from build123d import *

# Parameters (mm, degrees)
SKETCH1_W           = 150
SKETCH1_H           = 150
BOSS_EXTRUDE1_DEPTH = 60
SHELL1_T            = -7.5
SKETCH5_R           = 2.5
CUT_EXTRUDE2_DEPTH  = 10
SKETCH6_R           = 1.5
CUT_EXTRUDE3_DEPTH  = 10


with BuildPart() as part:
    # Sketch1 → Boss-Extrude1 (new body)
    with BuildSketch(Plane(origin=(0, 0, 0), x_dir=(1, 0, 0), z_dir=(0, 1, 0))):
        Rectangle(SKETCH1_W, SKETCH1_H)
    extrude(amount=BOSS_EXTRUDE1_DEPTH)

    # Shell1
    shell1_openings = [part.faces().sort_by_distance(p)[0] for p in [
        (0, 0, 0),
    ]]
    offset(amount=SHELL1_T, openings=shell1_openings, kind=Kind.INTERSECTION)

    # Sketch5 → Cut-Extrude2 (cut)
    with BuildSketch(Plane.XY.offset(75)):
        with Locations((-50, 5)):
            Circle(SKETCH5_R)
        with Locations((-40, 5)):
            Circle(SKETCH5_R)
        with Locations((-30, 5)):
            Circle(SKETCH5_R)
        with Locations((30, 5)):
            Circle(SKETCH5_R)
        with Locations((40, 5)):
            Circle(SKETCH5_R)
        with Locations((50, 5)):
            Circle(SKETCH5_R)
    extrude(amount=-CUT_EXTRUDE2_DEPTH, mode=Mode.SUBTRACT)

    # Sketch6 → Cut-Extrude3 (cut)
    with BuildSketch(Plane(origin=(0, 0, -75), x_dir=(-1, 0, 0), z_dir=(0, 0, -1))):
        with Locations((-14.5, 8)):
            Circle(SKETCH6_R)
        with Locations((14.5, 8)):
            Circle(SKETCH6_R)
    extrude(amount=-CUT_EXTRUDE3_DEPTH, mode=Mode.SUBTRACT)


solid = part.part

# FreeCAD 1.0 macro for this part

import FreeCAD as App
import Part
import Sketcher
from FreeCAD import Vector
Q = App.Units.Quantity


def faces_at(feature, points):
    """Names of the faces that lie closest to the given points."""
    faces = feature.Shape.Faces
    near = lambda p: min(range(len(faces)), key=lambda i: faces[i].distToShape(Part.Vertex(*p))[0])
    return sorted({f"Face{near(p) + 1}" for p in points})

doc = App.newDocument("Part")
body = doc.addObject("PartDesign::Body", "Body")

# Sketch on XZ plane
sketch1 = doc.addObject("Sketcher::SketchObject", "Sketch")
body.addObject(sketch1)
sketch1.AttachmentSupport = (doc.XZ_Plane, [""])
sketch1.MapMode = "FlatFace"
sketch1.addGeometry([
    Part.LineSegment(Vector(-75, -75, 0), Vector(-75, 75, 0)),
    Part.LineSegment(Vector(-75, 75, 0), Vector(75, 75, 0)),
    Part.LineSegment(Vector(75, 75, 0), Vector(75, -75, 0)),
    Part.LineSegment(Vector(75, -75, 0), Vector(-75, -75, 0)),
], False)
sketch1.addConstraint([
    Sketcher.Constraint("Coincident", 0, 2, 1, 1),
    Sketcher.Constraint("Coincident", 1, 2, 2, 1),
    Sketcher.Constraint("Coincident", 2, 2, 3, 1),
    Sketcher.Constraint("Coincident", 3, 2, 0, 1),
    Sketcher.Constraint("Vertical", 0),
    Sketcher.Constraint("Horizontal", 1),
    Sketcher.Constraint("Vertical", 2),
    Sketcher.Constraint("Horizontal", 3),
    Sketcher.Constraint("Symmetric", 0, 2, 2, 2, -1, 1),
    Sketcher.Constraint("Equal", 3, 0),
    Sketcher.Constraint("DistanceX", 1, 1, 1, 2, Q("150 mm")),
])
pad1 = doc.addObject("PartDesign::Pad", "Pad")
body.addObject(pad1)
pad1.Profile = sketch1
pad1.Length = 60
pad1.Reversed = True
doc.recompute()

thickness = doc.addObject("PartDesign::Thickness", "Thickness")
body.addObject(thickness)
thickness.Base = (pad1, faces_at(pad1, [(0, 0, 0)]))
thickness.Value = 7.5
thickness.Reversed = True
thickness.Join = "Intersection"

# Sketch on XY plane
sketch2 = doc.addObject("Sketcher::SketchObject", "Sketch001")
body.addObject(sketch2)
sketch2.AttachmentSupport = (doc.XY_Plane, [""])
sketch2.MapMode = "FlatFace"
sketch2.AttachmentOffset = App.Placement(Vector(0, 0, 75), App.Rotation())
sketch2.addGeometry([
    Part.Circle(Vector(-50, 5, 0), Vector(0, 0, 1), 2.5),  # 0
    Part.Circle(Vector(-40, 5, 0), Vector(0, 0, 1), 2.5),  # 1
    Part.Circle(Vector(-30, 5, 0), Vector(0, 0, 1), 2.5),  # 2
    Part.Circle(Vector(30, 5, 0), Vector(0, 0, 1), 2.5),  # 3
    Part.Circle(Vector(40, 5, 0), Vector(0, 0, 1), 2.5),  # 4
    Part.Circle(Vector(50, 5, 0), Vector(0, 0, 1), 2.5),  # 5
], False)
sketch2.addConstraint([
    Sketcher.Constraint("Equal", 0, 1),
    Sketcher.Constraint("Equal", 1, 2),
    Sketcher.Constraint("Equal", 2, 3),
    Sketcher.Constraint("Equal", 3, 4),
    Sketcher.Constraint("Equal", 4, 5),
    Sketcher.Constraint("Symmetric", 2, 3, 3, 3, -2),
    Sketcher.Constraint("Symmetric", 1, 3, 4, 3, -2),
    Sketcher.Constraint("Symmetric", 0, 3, 5, 3, -2),
    Sketcher.Constraint("Horizontal", 0, 3, 1, 3),
    Sketcher.Constraint("Horizontal", 1, 3, 2, 3),
    Sketcher.Constraint("Diameter", 0, Q("5 mm")),
    Sketcher.Constraint("DistanceX", 0, 3, -1, 1, Q("50 mm")),
    Sketcher.Constraint("DistanceY", -1, 1, 0, 3, Q("5 mm")),
    Sketcher.Constraint("DistanceX", 1, 3, -1, 1, Q("40 mm")),
    Sketcher.Constraint("DistanceX", 2, 3, -1, 1, Q("30 mm")),
])
pocket1 = doc.addObject("PartDesign::Pocket", "Pocket")
body.addObject(pocket1)
pocket1.Profile = sketch2
pocket1.Length = 10

# Sketch on XY plane
sketch3 = doc.addObject("Sketcher::SketchObject", "Sketch002")
body.addObject(sketch3)
sketch3.AttachmentSupport = (doc.XY_Plane, [""])
sketch3.MapMode = "FlatFace"
sketch3.AttachmentOffset = App.Placement(Vector(0, 0, -75), App.Rotation())
sketch3.addGeometry([
    Part.Circle(Vector(14.5, 8, 0), Vector(0, 0, 1), 1.5),
    Part.Circle(Vector(-14.5, 8, 0), Vector(0, 0, 1), 1.5),
], False)
sketch3.addConstraint([
    Sketcher.Constraint("Equal", 0, 1),
    Sketcher.Constraint("Symmetric", 0, 3, 1, 3, -2),
    Sketcher.Constraint("Diameter", 0, Q("3 mm")),
    Sketcher.Constraint("DistanceY", -1, 1, 0, 3, Q("8 mm")),
    Sketcher.Constraint("DistanceX", 1, 3, 0, 3, Q("29 mm")),
])
pocket2 = doc.addObject("PartDesign::Pocket", "Pocket001")
body.addObject(pocket2)
pocket2.Profile = sketch3
pocket2.Length = 10
pocket2.Reversed = True

doc.recompute()
